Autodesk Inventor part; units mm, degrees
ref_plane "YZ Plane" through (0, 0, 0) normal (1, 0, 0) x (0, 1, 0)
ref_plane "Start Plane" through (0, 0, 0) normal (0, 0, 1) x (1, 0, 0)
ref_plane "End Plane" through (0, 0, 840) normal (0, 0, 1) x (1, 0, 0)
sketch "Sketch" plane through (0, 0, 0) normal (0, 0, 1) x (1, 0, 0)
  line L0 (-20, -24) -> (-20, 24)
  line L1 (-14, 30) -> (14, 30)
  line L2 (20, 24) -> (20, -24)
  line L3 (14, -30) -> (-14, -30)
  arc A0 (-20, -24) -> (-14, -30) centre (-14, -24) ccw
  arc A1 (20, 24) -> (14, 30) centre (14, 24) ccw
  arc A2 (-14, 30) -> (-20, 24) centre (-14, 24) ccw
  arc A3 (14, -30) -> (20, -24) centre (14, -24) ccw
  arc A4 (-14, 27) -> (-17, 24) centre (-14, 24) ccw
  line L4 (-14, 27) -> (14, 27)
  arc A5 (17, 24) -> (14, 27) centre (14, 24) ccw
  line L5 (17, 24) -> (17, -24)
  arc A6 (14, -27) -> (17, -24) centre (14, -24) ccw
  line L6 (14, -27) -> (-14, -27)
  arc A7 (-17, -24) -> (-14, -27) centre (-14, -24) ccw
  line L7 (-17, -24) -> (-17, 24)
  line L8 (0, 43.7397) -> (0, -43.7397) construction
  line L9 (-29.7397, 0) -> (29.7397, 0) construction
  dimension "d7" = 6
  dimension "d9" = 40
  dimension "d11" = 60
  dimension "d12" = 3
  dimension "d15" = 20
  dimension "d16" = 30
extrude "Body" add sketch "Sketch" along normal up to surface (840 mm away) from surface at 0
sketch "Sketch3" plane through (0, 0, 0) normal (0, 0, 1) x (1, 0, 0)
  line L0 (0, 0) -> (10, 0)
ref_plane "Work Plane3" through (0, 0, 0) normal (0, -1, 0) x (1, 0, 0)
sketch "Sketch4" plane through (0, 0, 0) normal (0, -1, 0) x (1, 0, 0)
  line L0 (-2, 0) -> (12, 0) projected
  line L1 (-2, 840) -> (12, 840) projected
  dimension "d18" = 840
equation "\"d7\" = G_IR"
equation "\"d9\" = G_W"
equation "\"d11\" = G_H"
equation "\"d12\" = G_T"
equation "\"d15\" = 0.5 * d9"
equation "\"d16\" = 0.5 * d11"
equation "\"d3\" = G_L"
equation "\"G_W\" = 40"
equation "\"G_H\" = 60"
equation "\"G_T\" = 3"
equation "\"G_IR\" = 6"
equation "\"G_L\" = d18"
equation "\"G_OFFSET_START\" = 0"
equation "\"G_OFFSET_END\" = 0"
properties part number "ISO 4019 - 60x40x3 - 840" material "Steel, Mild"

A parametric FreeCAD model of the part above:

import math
import FreeCAD as App
import Part
import Sketcher
Q = App.Units.Quantity

doc = App.newDocument("Part")
body = doc.addObject("PartDesign::Body", "Body")

# Sketch on XY plane
sketch1 = doc.addObject("Sketcher::SketchObject", "Sketch")
body.addObject(sketch1)
sketch1.AttachmentSupport = (doc.XY_Plane, [""])
sketch1.MapMode = "FlatFace"
sketch1.addGeometry(Part.LineSegment(App.Vector(-20, 24, 0), App.Vector(-20, -24, 0)), False)
sketch1.addGeometry(Part.ArcOfCircle(Part.Circle(App.Vector(-14, -24, 0), App.Vector(0, 0, 1), 6), math.radians(180), math.radians(270)), False)
sketch1.addGeometry(Part.LineSegment(App.Vector(-14, -30, 0), App.Vector(14, -30, 0)), False)
sketch1.addGeometry(Part.ArcOfCircle(Part.Circle(App.Vector(14, -24, 0), App.Vector(0, 0, 1), 6), math.radians(-90), math.radians(0)), False)
sketch1.addGeometry(Part.LineSegment(App.Vector(20, -24, 0), App.Vector(20, 24, 0)), False)
sketch1.addGeometry(Part.ArcOfCircle(Part.Circle(App.Vector(14, 24, 0), App.Vector(0, 0, 1), 6), math.radians(0), math.radians(90)), False)
sketch1.addGeometry(Part.LineSegment(App.Vector(14, 30, 0), App.Vector(-14, 30, 0)), False)
sketch1.addGeometry(Part.ArcOfCircle(Part.Circle(App.Vector(-14, 24, 0), App.Vector(0, 0, 1), 6), math.radians(90), math.radians(180)), False)
sketch1.addGeometry(Part.ArcOfCircle(Part.Circle(App.Vector(-14, 24, 0), App.Vector(0, 0, 1), 3), math.radians(90), math.radians(180)), False)
sketch1.addGeometry(Part.LineSegment(App.Vector(-14, 27, 0), App.Vector(14, 27, 0)), False)
sketch1.addGeometry(Part.ArcOfCircle(Part.Circle(App.Vector(14, 24, 0), App.Vector(0, 0, 1), 3), math.radians(0), math.radians(90)), False)
sketch1.addGeometry(Part.LineSegment(App.Vector(17, 24, 0), App.Vector(17, -24, 0)), False)
sketch1.addGeometry(Part.ArcOfCircle(Part.Circle(App.Vector(14, -24, 0), App.Vector(0, 0, 1), 3), math.radians(-90), math.radians(0)), False)
sketch1.addGeometry(Part.LineSegment(App.Vector(14, -27, 0), App.Vector(-14, -27, 0)), False)
sketch1.addGeometry(Part.ArcOfCircle(Part.Circle(App.Vector(-14, -24, 0), App.Vector(0, 0, 1), 3), math.radians(180), math.radians(270)), False)
sketch1.addGeometry(Part.LineSegment(App.Vector(-17, -24, 0), App.Vector(-17, 24, 0)), False)
sketch1.addConstraint(Sketcher.Constraint("Tangent", 0, 2, 1, 1))
sketch1.addConstraint(Sketcher.Constraint("Tangent", 1, 2, 2, 1))
sketch1.addConstraint(Sketcher.Constraint("Tangent", 2, 2, 3, 1))
sketch1.addConstraint(Sketcher.Constraint("Tangent", 3, 2, 4, 1))
sketch1.addConstraint(Sketcher.Constraint("Tangent", 4, 2, 5, 1))
sketch1.addConstraint(Sketcher.Constraint("Tangent", 5, 2, 6, 1))
sketch1.addConstraint(Sketcher.Constraint("Tangent", 6, 2, 7, 1))
sketch1.addConstraint(Sketcher.Constraint("Tangent", 7, 2, 0, 1))
sketch1.addConstraint(Sketcher.Constraint("Tangent", 8, 1, 9, 1))
sketch1.addConstraint(Sketcher.Constraint("Tangent", 9, 2, 10, 2))
sketch1.addConstraint(Sketcher.Constraint("Tangent", 10, 1, 11, 1))
sketch1.addConstraint(Sketcher.Constraint("Tangent", 11, 2, 12, 2))
sketch1.addConstraint(Sketcher.Constraint("Tangent", 12, 1, 13, 1))
sketch1.addConstraint(Sketcher.Constraint("Tangent", 13, 2, 14, 2))
sketch1.addConstraint(Sketcher.Constraint("Tangent", 14, 1, 15, 1))
sketch1.addConstraint(Sketcher.Constraint("Tangent", 15, 2, 8, 2))
sketch1.addConstraint(Sketcher.Constraint("Vertical", 0))
sketch1.addConstraint(Sketcher.Constraint("Horizontal", 2))
sketch1.addConstraint(Sketcher.Constraint("Vertical", 4))
sketch1.addConstraint(Sketcher.Constraint("Horizontal", 6))
sketch1.addConstraint(Sketcher.Constraint("Horizontal", 9))
sketch1.addConstraint(Sketcher.Constraint("Vertical", 11))
sketch1.addConstraint(Sketcher.Constraint("Horizontal", 13))
sketch1.addConstraint(Sketcher.Constraint("Vertical", 15))
sketch1.addConstraint(Sketcher.Constraint("Coincident", 8, 3, 7, 3))
sketch1.addConstraint(Sketcher.Constraint("Coincident", 10, 3, 5, 3))
sketch1.addConstraint(Sketcher.Constraint("Coincident", 12, 3, 3, 3))
sketch1.addConstraint(Sketcher.Constraint("Equal", 1, 3))
sketch1.addConstraint(Sketcher.Constraint("Equal", 3, 5))
sketch1.addConstraint(Sketcher.Constraint("Equal", 5, 7))
sketch1.addConstraint(Sketcher.Constraint("Equal", 12, 14))
sketch1.addConstraint(Sketcher.Constraint("Symmetric", 1, 3, 5, 3, -1, 1))
sketch1.addConstraint(Sketcher.Constraint("Radius", 1, Q("6 mm")))
sketch1.addConstraint(Sketcher.Constraint("Radius", 8, Q("3 mm")))
sketch1.addConstraint(Sketcher.Constraint("DistanceX", 0, 2, -1, 1, Q("20 mm")))
sketch1.addConstraint(Sketcher.Constraint("DistanceY", 1, 2, -1, 1, Q("30 mm")))
pad1 = doc.addObject("PartDesign::Pad", "Pad")
body.addObject(pad1)
pad1.Profile = sketch1
pad1.Length = 840

doc.recompute()
